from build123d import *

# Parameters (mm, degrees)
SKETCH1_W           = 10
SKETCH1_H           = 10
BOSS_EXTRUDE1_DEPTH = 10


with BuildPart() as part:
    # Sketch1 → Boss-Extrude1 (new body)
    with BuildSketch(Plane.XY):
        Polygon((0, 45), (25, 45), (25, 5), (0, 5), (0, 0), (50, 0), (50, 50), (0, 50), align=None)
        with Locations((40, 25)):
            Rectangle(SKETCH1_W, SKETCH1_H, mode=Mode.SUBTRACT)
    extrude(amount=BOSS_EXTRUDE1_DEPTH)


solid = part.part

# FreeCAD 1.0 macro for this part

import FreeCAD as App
import Part
import Sketcher

V = App.Vector
Q = App.Units.Quantity


def add_polygon(sketch, points):
    """Adds a closed chain of lines whose ends are joined by coincident constraints."""
    first, n = sketch.GeometryCount, len(points)
    for a, b in zip(points, points[1:] + points[:1]):
        sketch.addGeometry(Part.LineSegment(App.Vector(*a, 0), App.Vector(*b, 0)), False)
    for i in range(n):
        sketch.addConstraint(Sketcher.Constraint("Coincident", first + i, 2, first + (i + 1) % n, 1))

doc = App.newDocument("Part")
body = doc.addObject("PartDesign::Body", "Body")

# Sketch on XY plane
sketch1 = body.newObject("Sketcher::SketchObject", "Sketch")
sketch1.AttachmentSupport = (doc.getObject("XY_Plane"), [""])
sketch1.MapMode = "FlatFace"
add_polygon(sketch1, [(0, 45), (25, 45), (25, 5), (0, 5), (0, 0), (50, 0), (50, 50), (0, 50)])  # lines 0-7
add_polygon(sketch1, [(45, 20), (35, 20), (35, 30), (45, 30)])  # lines 8-11
sketch1.addConstraint([
    Sketcher.Constraint("Horizontal", 0),
    Sketcher.Constraint("Vertical", 1),
    Sketcher.Constraint("Horizontal", 2),
    Sketcher.Constraint("Vertical", 3),
    Sketcher.Constraint("Horizontal", 4),
    Sketcher.Constraint("Vertical", 5),
    Sketcher.Constraint("Horizontal", 6),
    Sketcher.Constraint("Vertical", 7),
    Sketcher.Constraint("Horizontal", 8),
    Sketcher.Constraint("Vertical", 9),
    Sketcher.Constraint("Horizontal", 10),
    Sketcher.Constraint("Vertical", 11),
    Sketcher.Constraint("Coincident", 3, 2, -1, 1),
    Sketcher.Constraint("PointOnObject", 6, 2, -2),
    Sketcher.Constraint("Equal", 6, 5),
    Sketcher.Constraint("Equal", 3, 7),
    Sketcher.Constraint("Equal", 10, 9),
    Sketcher.Constraint("DistanceX", 0, 1, 0, 2, Q("25 mm")),
    Sketcher.Constraint("DistanceX", 4, 1, 4, 2, Q("50 mm")),
    Sketcher.Constraint("DistanceX", 8, 2, 8, 1, Q("10 mm")),
    Sketcher.Constraint("DistanceY", 1, 2, 1, 1, Q("40 mm")),
    Sketcher.Constraint("DistanceX", -1, 1, 8, 2, Q("35 mm")),
    Sketcher.Constraint("DistanceY", -1, 1, 8, 2, Q("20 mm")),
])
pad1 = body.newObject("PartDesign::Pad", "Pad")
pad1.Profile = sketch1
pad1.Length = 10

doc.recompute()
